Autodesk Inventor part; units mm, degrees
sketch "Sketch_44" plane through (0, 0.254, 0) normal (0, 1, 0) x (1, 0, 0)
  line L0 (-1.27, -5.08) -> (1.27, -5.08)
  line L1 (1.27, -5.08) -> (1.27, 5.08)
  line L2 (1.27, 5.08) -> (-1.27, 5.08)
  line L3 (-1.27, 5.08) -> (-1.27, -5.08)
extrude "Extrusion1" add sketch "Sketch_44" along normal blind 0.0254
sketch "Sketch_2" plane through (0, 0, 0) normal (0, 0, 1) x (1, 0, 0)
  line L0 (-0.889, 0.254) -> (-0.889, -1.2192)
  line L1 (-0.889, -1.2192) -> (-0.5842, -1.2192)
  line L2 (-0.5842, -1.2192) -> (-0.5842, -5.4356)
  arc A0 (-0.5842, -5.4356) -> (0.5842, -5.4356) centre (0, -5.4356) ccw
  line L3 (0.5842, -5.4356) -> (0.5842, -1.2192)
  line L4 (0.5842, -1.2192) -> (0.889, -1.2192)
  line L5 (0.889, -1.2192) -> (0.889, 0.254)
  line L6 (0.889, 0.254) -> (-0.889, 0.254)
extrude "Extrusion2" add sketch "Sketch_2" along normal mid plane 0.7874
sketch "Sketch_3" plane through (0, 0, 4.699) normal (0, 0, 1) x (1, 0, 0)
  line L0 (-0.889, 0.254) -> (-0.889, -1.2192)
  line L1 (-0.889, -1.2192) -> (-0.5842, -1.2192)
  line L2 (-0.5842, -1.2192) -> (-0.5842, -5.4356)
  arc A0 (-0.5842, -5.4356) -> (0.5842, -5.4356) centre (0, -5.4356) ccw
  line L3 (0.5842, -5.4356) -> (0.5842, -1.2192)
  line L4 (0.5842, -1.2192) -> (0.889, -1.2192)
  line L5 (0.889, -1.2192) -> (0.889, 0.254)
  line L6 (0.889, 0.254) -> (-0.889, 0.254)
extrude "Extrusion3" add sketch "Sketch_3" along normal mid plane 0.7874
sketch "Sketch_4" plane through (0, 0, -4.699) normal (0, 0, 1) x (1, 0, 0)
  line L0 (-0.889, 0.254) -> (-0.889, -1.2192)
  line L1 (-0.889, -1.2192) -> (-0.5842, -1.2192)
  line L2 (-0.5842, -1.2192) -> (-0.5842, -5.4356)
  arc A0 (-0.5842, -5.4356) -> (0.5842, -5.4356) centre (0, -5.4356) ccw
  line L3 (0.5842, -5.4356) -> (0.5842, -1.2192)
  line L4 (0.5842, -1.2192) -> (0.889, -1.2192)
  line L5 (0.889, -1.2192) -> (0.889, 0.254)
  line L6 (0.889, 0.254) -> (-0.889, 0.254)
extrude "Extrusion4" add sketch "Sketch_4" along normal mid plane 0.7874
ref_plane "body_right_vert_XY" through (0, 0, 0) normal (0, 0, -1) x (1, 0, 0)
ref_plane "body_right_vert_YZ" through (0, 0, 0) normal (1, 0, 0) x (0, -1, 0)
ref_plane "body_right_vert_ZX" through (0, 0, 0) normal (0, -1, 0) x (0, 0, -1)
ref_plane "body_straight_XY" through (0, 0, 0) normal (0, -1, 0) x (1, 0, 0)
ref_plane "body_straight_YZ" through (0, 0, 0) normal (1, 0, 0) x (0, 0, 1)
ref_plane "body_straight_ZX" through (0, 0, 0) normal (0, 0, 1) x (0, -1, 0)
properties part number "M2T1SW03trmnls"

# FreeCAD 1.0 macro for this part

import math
import FreeCAD as App
import Part
import Sketcher
from FreeCAD import Vector
Q = App.Units.Quantity

doc = App.newDocument("Part")
body = doc.addObject("PartDesign::Body", "Body")

# Sketch on XZ plane
sketch1 = doc.addObject("Sketcher::SketchObject", "Sketch")
body.addObject(sketch1)
sketch1.AttachmentSupport = (doc.XZ_Plane, [""])
sketch1.MapMode = "FlatFace"
sketch1.AttachmentOffset = App.Placement(Vector(0, 0, -0.01 * 25.4), App.Rotation())
sketch1.addGeometry([
    Part.LineSegment(Vector(-1.3, -5.1, 0), Vector(-1.3, 5.1, 0)),
    Part.LineSegment(Vector(-1.3, 5.1, 0), Vector(1.3, 5.1, 0)),
    Part.LineSegment(Vector(1.3, 5.1, 0), Vector(1.3, -5.1, 0)),
    Part.LineSegment(Vector(1.3, -5.1, 0), Vector(-1.3, -5.1, 0)),
], False)
sketch1.addConstraint([
    Sketcher.Constraint("Coincident", 0, 2, 1, 1),
    Sketcher.Constraint("Coincident", 1, 2, 2, 1),
    Sketcher.Constraint("Coincident", 2, 2, 3, 1),
    Sketcher.Constraint("Coincident", 3, 2, 0, 1),
    Sketcher.Constraint("Vertical", 0),
    Sketcher.Constraint("Horizontal", 1),
    Sketcher.Constraint("Vertical", 2),
    Sketcher.Constraint("Horizontal", 3),
    Sketcher.Constraint("Symmetric", 0, 2, 2, 2, -1, 1),
    Sketcher.Constraint("DistanceX", 1, 1, 1, 2, Q("0.1 in")),
    Sketcher.Constraint("DistanceY", 0, 1, 0, 2, Q("0.4 in")),
])
pad1 = doc.addObject("PartDesign::Pad", "Pad")
body.addObject(pad1)
pad1.Profile = sketch1
pad1.Length = Q("0.001 in")
pad1.Reversed = True

# Sketch on XY plane
sketch2 = doc.addObject("Sketcher::SketchObject", "Sketch001")
body.addObject(sketch2)
sketch2.AttachmentSupport = (doc.XY_Plane, [""])
sketch2.MapMode = "FlatFace"
sketch2.addGeometry([
    Part.LineSegment(Vector(0.89, 0.25, 0), Vector(-0.89, 0.25, 0)),  # 0
    Part.LineSegment(Vector(-0.89, 0.25, 0), Vector(-0.89, -1.22, 0)),  # 1
    Part.LineSegment(Vector(-0.89, -1.22, 0), Vector(-0.58, -1.22, 0)),  # 2
    Part.LineSegment(Vector(-0.58, -1.22, 0), Vector(-0.58, -5.44, 0)),  # 3
    Part.ArcOfCircle(Part.Circle(Vector(0, -5.44, 0), Vector(0, 0, 1), 0.58), math.radians(180), math.radians(360)),  # 4
    Part.LineSegment(Vector(0.58, -5.44, 0), Vector(0.58, -1.22, 0)),  # 5
    Part.LineSegment(Vector(0.58, -1.22, 0), Vector(0.89, -1.22, 0)),  # 6
    Part.LineSegment(Vector(0.89, -1.22, 0), Vector(0.89, 0.25, 0)),  # 7
], False)
sketch2.addConstraint([
    Sketcher.Constraint("Coincident", 0, 2, 1, 1),
    Sketcher.Constraint("Coincident", 1, 2, 2, 1),
    Sketcher.Constraint("Coincident", 2, 2, 3, 1),
    Sketcher.Constraint("Tangent", 3, 2, 4, 1),
    Sketcher.Constraint("Tangent", 4, 2, 5, 1),
    Sketcher.Constraint("Coincident", 5, 2, 6, 1),
    Sketcher.Constraint("Coincident", 6, 2, 7, 1),
    Sketcher.Constraint("Coincident", 7, 2, 0, 1),
    Sketcher.Constraint("Horizontal", 0),
    Sketcher.Constraint("Vertical", 1),
    Sketcher.Constraint("Horizontal", 2),
    Sketcher.Constraint("Vertical", 3),
    Sketcher.Constraint("Vertical", 5),
    Sketcher.Constraint("Horizontal", 6),
    Sketcher.Constraint("Vertical", 7),
    Sketcher.Constraint("Symmetric", 2, 2, 5, 2, -2),
    Sketcher.Constraint("Equal", 2, 6),
    Sketcher.Constraint("Radius", 4, Q("0.023 in")),
    Sketcher.Constraint("DistanceX", 0, 2, 0, 1, Q("0.07 in")),
    Sketcher.Constraint("DistanceY", 1, 2, 1, 1, Q("0.058 in")),
    Sketcher.Constraint("DistanceY", 3, 2, 3, 1, Q("0.166 in")),
    Sketcher.Constraint("DistanceY", -1, 1, 0, 2, Q("0.01 in")),
])
pad2 = doc.addObject("PartDesign::Pad", "Pad001")
body.addObject(pad2)
pad2.Profile = sketch2
pad2.Length = Q("0.031 in")
pad2.Midplane = True

# Sketch on XY plane
sketch3 = doc.addObject("Sketcher::SketchObject", "Sketch002")
body.addObject(sketch3)
sketch3.AttachmentSupport = (doc.XY_Plane, [""])
sketch3.MapMode = "FlatFace"
sketch3.AttachmentOffset = App.Placement(Vector(0, 0, 0.185 * 25.4), App.Rotation())
sketch3.addGeometry([
    Part.LineSegment(Vector(0.89, 0.25, 0), Vector(-0.89, 0.25, 0)),  # 0
    Part.LineSegment(Vector(-0.89, 0.25, 0), Vector(-0.89, -1.22, 0)),  # 1
    Part.LineSegment(Vector(-0.89, -1.22, 0), Vector(-0.58, -1.22, 0)),  # 2
    Part.LineSegment(Vector(-0.58, -1.22, 0), Vector(-0.58, -5.44, 0)),  # 3
    Part.ArcOfCircle(Part.Circle(Vector(0, -5.44, 0), Vector(0, 0, 1), 0.58), math.radians(180), math.radians(360)),  # 4
    Part.LineSegment(Vector(0.58, -5.44, 0), Vector(0.58, -1.22, 0)),  # 5
    Part.LineSegment(Vector(0.58, -1.22, 0), Vector(0.89, -1.22, 0)),  # 6
    Part.LineSegment(Vector(0.89, -1.22, 0), Vector(0.89, 0.25, 0)),  # 7
], False)
sketch3.addConstraint([
    Sketcher.Constraint("Coincident", 0, 2, 1, 1),
    Sketcher.Constraint("Coincident", 1, 2, 2, 1),
    Sketcher.Constraint("Coincident", 2, 2, 3, 1),
    Sketcher.Constraint("Tangent", 3, 2, 4, 1),
    Sketcher.Constraint("Tangent", 4, 2, 5, 1),
    Sketcher.Constraint("Coincident", 5, 2, 6, 1),
    Sketcher.Constraint("Coincident", 6, 2, 7, 1),
    Sketcher.Constraint("Coincident", 7, 2, 0, 1),
    Sketcher.Constraint("Horizontal", 0),
    Sketcher.Constraint("Vertical", 1),
    Sketcher.Constraint("Horizontal", 2),
    Sketcher.Constraint("Vertical", 3),
    Sketcher.Constraint("Vertical", 5),
    Sketcher.Constraint("Horizontal", 6),
    Sketcher.Constraint("Vertical", 7),
    Sketcher.Constraint("Symmetric", 2, 2, 5, 2, -2),
    Sketcher.Constraint("Equal", 2, 6),
    Sketcher.Constraint("Radius", 4, Q("0.023 in")),
    Sketcher.Constraint("DistanceX", 0, 2, 0, 1, Q("0.07 in")),
    Sketcher.Constraint("DistanceY", 1, 2, 1, 1, Q("0.058 in")),
    Sketcher.Constraint("DistanceY", 3, 2, 3, 1, Q("0.166 in")),
    Sketcher.Constraint("DistanceY", -1, 1, 0, 2, Q("0.01 in")),
])
pad3 = doc.addObject("PartDesign::Pad", "Pad002")
body.addObject(pad3)
pad3.Profile = sketch3
pad3.Length = Q("0.031 in")
pad3.Midplane = True

# Sketch on XY plane
sketch4 = doc.addObject("Sketcher::SketchObject", "Sketch003")
body.addObject(sketch4)
sketch4.AttachmentSupport = (doc.XY_Plane, [""])
sketch4.MapMode = "FlatFace"
sketch4.AttachmentOffset = App.Placement(Vector(0, 0, -0.185 * 25.4), App.Rotation())
sketch4.addGeometry([
    Part.LineSegment(Vector(0.89, 0.25, 0), Vector(-0.89, 0.25, 0)),  # 0
    Part.LineSegment(Vector(-0.89, 0.25, 0), Vector(-0.89, -1.22, 0)),  # 1
    Part.LineSegment(Vector(-0.89, -1.22, 0), Vector(-0.58, -1.22, 0)),  # 2
    Part.LineSegment(Vector(-0.58, -1.22, 0), Vector(-0.58, -5.44, 0)),  # 3
    Part.ArcOfCircle(Part.Circle(Vector(0, -5.44, 0), Vector(0, 0, 1), 0.58), math.radians(180), math.radians(360)),  # 4
    Part.LineSegment(Vector(0.58, -5.44, 0), Vector(0.58, -1.22, 0)),  # 5
    Part.LineSegment(Vector(0.58, -1.22, 0), Vector(0.89, -1.22, 0)),  # 6
    Part.LineSegment(Vector(0.89, -1.22, 0), Vector(0.89, 0.25, 0)),  # 7
], False)
sketch4.addConstraint([
    Sketcher.Constraint("Coincident", 0, 2, 1, 1),
    Sketcher.Constraint("Coincident", 1, 2, 2, 1),
    Sketcher.Constraint("Coincident", 2, 2, 3, 1),
    Sketcher.Constraint("Tangent", 3, 2, 4, 1),
    Sketcher.Constraint("Tangent", 4, 2, 5, 1),
    Sketcher.Constraint("Coincident", 5, 2, 6, 1),
    Sketcher.Constraint("Coincident", 6, 2, 7, 1),
    Sketcher.Constraint("Coincident", 7, 2, 0, 1),
    Sketcher.Constraint("Horizontal", 0),
    Sketcher.Constraint("Vertical", 1),
    Sketcher.Constraint("Horizontal", 2),
    Sketcher.Constraint("Vertical", 3),
    Sketcher.Constraint("Vertical", 5),
    Sketcher.Constraint("Horizontal", 6),
    Sketcher.Constraint("Vertical", 7),
    Sketcher.Constraint("Symmetric", 2, 2, 5, 2, -2),
    Sketcher.Constraint("Equal", 2, 6),
    Sketcher.Constraint("Radius", 4, Q("0.023 in")),
    Sketcher.Constraint("DistanceX", 0, 2, 0, 1, Q("0.07 in")),
    Sketcher.Constraint("DistanceY", 1, 2, 1, 1, Q("0.058 in")),
    Sketcher.Constraint("DistanceY", 3, 2, 3, 1, Q("0.166 in")),
    Sketcher.Constraint("DistanceY", -1, 1, 0, 2, Q("0.01 in")),
])
pad4 = doc.addObject("PartDesign::Pad", "Pad003")
body.addObject(pad4)
pad4.Profile = sketch4
pad4.Length = Q("0.031 in")
pad4.Midplane = True

doc.recompute()
